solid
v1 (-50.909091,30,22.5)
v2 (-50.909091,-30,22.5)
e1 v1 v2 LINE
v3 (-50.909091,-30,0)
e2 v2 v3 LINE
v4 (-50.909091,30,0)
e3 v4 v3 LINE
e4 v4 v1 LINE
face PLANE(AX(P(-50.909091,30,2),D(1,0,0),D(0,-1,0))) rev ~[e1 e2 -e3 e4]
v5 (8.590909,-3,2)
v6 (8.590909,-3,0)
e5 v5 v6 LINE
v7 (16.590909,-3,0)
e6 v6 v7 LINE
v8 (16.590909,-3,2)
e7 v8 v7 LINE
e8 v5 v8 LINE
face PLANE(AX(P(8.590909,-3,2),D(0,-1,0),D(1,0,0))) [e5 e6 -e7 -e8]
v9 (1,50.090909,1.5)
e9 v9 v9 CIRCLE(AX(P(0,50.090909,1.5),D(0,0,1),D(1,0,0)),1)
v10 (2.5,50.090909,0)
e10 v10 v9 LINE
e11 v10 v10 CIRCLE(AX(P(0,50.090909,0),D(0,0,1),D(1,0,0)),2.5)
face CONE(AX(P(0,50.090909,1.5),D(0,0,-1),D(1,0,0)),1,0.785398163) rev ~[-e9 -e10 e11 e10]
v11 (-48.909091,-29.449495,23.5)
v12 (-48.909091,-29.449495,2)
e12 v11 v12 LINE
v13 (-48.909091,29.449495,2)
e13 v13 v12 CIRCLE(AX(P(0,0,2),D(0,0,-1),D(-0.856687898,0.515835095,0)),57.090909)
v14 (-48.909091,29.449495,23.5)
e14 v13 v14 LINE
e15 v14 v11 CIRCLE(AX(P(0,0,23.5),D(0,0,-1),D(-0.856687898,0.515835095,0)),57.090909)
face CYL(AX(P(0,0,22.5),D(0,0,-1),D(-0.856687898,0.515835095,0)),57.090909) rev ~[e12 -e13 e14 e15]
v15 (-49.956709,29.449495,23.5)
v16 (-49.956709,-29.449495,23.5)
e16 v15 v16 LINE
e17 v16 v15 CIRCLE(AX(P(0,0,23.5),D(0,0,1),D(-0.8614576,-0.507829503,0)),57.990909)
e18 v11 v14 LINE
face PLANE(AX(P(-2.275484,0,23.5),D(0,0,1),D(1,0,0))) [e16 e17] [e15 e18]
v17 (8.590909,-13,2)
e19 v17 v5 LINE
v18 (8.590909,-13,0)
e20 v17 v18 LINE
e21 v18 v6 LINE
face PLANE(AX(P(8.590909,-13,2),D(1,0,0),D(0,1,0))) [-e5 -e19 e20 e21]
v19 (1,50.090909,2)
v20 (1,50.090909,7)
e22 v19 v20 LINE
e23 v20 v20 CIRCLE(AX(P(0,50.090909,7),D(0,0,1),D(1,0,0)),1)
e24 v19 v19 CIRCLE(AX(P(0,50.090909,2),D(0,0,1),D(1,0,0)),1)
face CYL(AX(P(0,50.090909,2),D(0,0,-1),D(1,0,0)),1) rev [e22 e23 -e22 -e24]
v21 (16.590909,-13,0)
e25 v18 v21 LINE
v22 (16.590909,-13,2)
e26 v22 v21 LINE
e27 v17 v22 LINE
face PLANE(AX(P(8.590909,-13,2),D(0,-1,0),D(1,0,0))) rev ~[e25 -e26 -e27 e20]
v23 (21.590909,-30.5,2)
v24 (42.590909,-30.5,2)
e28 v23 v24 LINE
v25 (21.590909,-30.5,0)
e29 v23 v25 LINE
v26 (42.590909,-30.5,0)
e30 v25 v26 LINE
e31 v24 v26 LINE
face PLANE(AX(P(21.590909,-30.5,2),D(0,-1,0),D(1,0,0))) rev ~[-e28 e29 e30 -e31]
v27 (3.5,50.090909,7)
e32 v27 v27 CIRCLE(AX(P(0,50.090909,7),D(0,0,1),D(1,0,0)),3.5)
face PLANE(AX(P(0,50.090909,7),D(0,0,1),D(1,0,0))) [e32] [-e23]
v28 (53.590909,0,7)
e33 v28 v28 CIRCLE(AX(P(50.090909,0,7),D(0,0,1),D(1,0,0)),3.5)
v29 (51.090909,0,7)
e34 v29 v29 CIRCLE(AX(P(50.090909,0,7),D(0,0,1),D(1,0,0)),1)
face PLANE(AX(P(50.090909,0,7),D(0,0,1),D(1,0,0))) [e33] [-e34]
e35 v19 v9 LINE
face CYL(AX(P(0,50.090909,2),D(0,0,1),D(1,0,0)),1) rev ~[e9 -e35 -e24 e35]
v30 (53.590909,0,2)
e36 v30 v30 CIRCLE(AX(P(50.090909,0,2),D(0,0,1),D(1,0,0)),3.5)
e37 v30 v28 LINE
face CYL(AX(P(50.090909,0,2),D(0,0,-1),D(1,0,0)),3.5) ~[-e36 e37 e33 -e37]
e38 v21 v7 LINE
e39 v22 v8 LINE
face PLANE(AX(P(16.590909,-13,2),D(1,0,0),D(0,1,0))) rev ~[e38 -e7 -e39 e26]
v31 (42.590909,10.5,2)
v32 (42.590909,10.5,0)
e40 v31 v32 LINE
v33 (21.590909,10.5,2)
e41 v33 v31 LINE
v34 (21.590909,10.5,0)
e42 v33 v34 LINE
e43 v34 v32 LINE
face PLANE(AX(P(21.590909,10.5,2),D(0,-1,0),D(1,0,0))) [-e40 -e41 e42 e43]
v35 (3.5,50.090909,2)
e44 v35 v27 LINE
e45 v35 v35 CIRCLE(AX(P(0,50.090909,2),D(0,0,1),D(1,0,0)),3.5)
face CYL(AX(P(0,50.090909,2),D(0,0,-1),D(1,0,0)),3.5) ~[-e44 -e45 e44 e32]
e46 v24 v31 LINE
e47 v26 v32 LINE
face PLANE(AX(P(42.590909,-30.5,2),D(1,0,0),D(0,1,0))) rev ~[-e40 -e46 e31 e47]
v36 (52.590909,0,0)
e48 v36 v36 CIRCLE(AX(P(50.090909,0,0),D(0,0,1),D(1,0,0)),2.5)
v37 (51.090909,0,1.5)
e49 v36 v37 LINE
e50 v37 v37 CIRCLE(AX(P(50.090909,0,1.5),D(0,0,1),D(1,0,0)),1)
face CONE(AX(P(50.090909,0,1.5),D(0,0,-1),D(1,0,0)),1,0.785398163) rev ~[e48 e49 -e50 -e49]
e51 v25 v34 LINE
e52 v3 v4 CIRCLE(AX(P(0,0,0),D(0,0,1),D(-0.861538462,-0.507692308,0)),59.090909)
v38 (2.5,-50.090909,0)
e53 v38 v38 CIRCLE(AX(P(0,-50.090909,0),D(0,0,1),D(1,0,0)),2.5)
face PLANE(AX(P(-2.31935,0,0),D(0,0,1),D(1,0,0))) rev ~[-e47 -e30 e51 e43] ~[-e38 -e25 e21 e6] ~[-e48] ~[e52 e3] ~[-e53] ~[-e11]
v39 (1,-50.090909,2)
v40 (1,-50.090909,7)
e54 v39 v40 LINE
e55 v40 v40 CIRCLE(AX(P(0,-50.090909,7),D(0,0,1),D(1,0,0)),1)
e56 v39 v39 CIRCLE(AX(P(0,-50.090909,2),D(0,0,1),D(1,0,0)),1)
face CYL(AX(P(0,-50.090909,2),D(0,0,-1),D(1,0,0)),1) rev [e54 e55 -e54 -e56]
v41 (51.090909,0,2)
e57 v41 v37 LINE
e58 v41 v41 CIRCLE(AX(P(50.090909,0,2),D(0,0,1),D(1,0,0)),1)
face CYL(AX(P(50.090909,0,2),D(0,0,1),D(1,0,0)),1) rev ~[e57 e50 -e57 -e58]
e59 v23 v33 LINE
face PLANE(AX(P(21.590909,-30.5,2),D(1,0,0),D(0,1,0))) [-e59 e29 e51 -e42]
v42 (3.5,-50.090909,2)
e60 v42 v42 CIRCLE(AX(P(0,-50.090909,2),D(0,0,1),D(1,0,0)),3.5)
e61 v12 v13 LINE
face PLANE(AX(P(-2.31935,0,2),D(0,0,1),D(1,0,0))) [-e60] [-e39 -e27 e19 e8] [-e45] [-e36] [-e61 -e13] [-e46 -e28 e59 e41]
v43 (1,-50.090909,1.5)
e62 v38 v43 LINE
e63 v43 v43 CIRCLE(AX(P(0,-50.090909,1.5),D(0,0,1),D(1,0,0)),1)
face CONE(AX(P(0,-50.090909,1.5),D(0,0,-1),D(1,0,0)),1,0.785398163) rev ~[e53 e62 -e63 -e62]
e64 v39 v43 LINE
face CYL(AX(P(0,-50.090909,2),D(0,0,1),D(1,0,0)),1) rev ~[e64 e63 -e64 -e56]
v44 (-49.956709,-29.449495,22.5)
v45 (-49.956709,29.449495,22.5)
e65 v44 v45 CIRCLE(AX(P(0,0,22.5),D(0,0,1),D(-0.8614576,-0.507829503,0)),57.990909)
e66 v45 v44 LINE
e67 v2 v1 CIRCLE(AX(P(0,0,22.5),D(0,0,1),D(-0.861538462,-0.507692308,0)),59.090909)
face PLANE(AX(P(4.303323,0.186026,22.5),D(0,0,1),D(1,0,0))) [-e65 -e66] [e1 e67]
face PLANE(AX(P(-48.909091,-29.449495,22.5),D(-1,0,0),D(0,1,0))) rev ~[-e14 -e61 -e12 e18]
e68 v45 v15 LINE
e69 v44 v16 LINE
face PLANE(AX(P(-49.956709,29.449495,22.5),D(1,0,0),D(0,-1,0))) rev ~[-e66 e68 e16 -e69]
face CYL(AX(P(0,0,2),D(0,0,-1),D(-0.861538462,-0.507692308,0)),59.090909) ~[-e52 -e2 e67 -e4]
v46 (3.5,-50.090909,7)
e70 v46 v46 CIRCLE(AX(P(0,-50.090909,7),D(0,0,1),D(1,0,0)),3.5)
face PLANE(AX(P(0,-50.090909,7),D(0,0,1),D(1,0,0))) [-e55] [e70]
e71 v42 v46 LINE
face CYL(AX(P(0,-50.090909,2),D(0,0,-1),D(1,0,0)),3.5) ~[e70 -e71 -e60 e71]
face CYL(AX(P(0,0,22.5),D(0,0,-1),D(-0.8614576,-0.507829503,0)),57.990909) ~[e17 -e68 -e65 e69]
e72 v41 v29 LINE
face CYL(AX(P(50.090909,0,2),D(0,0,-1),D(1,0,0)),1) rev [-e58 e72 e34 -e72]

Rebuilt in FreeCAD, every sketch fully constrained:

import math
import FreeCAD as App
import Part
import Sketcher

V = App.Vector
Q = App.Units.Quantity


def edges_at(feature, points):
    """Names of the edges that pass closest to the given points."""
    edges = feature.Shape.Edges
    near = lambda p: min(range(len(edges)), key=lambda i: edges[i].distToShape(Part.Vertex(*p))[0])
    return sorted({f"Edge{near(p) + 1}" for p in points})

doc = App.newDocument("Part")
body = doc.addObject("PartDesign::Body", "Body")

# Sketch on XY plane
sketch1 = doc.addObject("Sketcher::SketchObject", "Sketch")
body.addObject(sketch1)
sketch1.AttachmentSupport = (doc.XY_Plane, [""])
sketch1.MapMode = "FlatFace"
sketch1.addGeometry([
    Part.LineSegment(V(-51, 30, 0), V(-51, -30, 0)),
    Part.ArcOfCircle(Part.Circle(V(0, 0, 0), V(0, 0, 1), 59), math.radians(-149), math.radians(149)),
], False)
sketch1.addConstraint([
    Sketcher.Constraint("Coincident", 0, 1, 1, 2),
    Sketcher.Constraint("Coincident", 1, 1, 0, 2),
    Sketcher.Constraint("Vertical", 0),
    Sketcher.Constraint("Coincident", 1, 3, -1, 1),
    Sketcher.Constraint("DistanceY", 0, 2, 0, 1, Q("60 mm")),
    Sketcher.Constraint("Radius", 1, Q("59.090909 mm")),
])
pad1 = doc.addObject("PartDesign::Pad", "Pad")
body.addObject(pad1)
pad1.Profile = sketch1
pad1.Length = 2

# Sketch on XY plane
sketch2 = doc.addObject("Sketcher::SketchObject", "Sketch001")
body.addObject(sketch2)
sketch2.AttachmentSupport = (doc.XY_Plane, [""])
sketch2.MapMode = "FlatFace"
sketch2.AttachmentOffset = App.Placement(V(0, 0, 2), App.Rotation())
sketch2.addGeometry([
    Part.Circle(V(0, -50.1, 0), V(0, 0, 1), 3.5),  # 0
    Part.Circle(V(0, -50.1, 0), V(0, 0, 1), 1),  # 1
    Part.Circle(V(0, 50.1, 0), V(0, 0, 1), 3.5),  # 2
    Part.Circle(V(0, 50.1, 0), V(0, 0, 1), 1),  # 3
    Part.Circle(V(50.1, 0, 0), V(0, 0, 1), 3.5),  # 4
    Part.Circle(V(50.1, 0, 0), V(0, 0, 1), 1),  # 5
], False)
sketch2.addConstraint([
    Sketcher.Constraint("Coincident", 1, 3, 0, 3),
    Sketcher.Constraint("Coincident", 3, 3, 2, 3),
    Sketcher.Constraint("Coincident", 5, 3, 4, 3),
    Sketcher.Constraint("Equal", 0, 2),
    Sketcher.Constraint("Equal", 1, 3),
    Sketcher.Constraint("Equal", 2, 4),
    Sketcher.Constraint("Equal", 3, 5),
    Sketcher.Constraint("Symmetric", 0, 3, 2, 3, -1, 1),
    Sketcher.Constraint("PointOnObject", 0, 3, -2),
    Sketcher.Constraint("PointOnObject", 4, 3, -1),
    Sketcher.Constraint("Diameter", 0, Q("7 mm")),
    Sketcher.Constraint("Diameter", 1, Q("2 mm")),
    Sketcher.Constraint("DistanceY", 0, 3, -1, 1, Q("50.090909 mm")),
    Sketcher.Constraint("DistanceX", -1, 1, 4, 3, Q("50.090909 mm")),
])
pad2 = doc.addObject("PartDesign::Pad", "Pad001")
body.addObject(pad2)
pad2.Profile = sketch2
pad2.Length = 5

# Sketch on XY plane
sketch3 = doc.addObject("Sketcher::SketchObject", "Sketch002")
body.addObject(sketch3)
sketch3.AttachmentSupport = (doc.XY_Plane, [""])
sketch3.MapMode = "FlatFace"
sketch3.AttachmentOffset = App.Placement(V(0, 0, 2), App.Rotation())
sketch3.addGeometry([
    Part.ArcOfCircle(Part.Circle(V(0, 0, 0), V(0, 0, 1), 59), math.radians(-149), math.radians(149)),
    Part.LineSegment(V(-51, 30, 0), V(-51, -30, 0)),
    Part.ArcOfCircle(Part.Circle(V(0, 0, 0), V(0, 0, 1), 57), math.radians(-149), math.radians(149)),
    Part.LineSegment(V(-49, -29, 0), V(-49, 29, 0)),
], False)
sketch3.addConstraint([
    Sketcher.Constraint("Coincident", 0, 1, 1, 2),
    Sketcher.Constraint("Coincident", 1, 1, 0, 2),
    Sketcher.Constraint("Coincident", 2, 1, 3, 1),
    Sketcher.Constraint("Coincident", 3, 2, 2, 2),
    Sketcher.Constraint("Vertical", 1),
    Sketcher.Constraint("Vertical", 3),
    Sketcher.Constraint("Coincident", 0, 3, -1, 1),
    Sketcher.Constraint("Coincident", 2, 3, -1, 1),
    Sketcher.Constraint("DistanceY", 1, 2, 1, 1, Q("60 mm")),
    Sketcher.Constraint("DistanceX", 0, 1, 2, 1, Q("2 mm")),
    Sketcher.Constraint("Radius", 0, Q("59.090909 mm")),
    Sketcher.Constraint("Radius", 2, Q("57.090909 mm")),
])
pad3 = doc.addObject("PartDesign::Pad", "Pad002")
body.addObject(pad3)
pad3.Profile = sketch3
pad3.Length = 20.5

# Sketch on XY plane
sketch4 = doc.addObject("Sketcher::SketchObject", "Sketch003")
body.addObject(sketch4)
sketch4.AttachmentSupport = (doc.XY_Plane, [""])
sketch4.MapMode = "FlatFace"
sketch4.AttachmentOffset = App.Placement(V(0, 0, 22.5), App.Rotation())
sketch4.addGeometry([
    Part.LineSegment(V(-50, 29, 0), V(-50, -29, 0)),
    Part.ArcOfCircle(Part.Circle(V(0, 0, 0), V(0, 0, 1), 58), math.radians(-149), math.radians(149)),
    Part.LineSegment(V(-49, -29, 0), V(-49, 29, 0)),
    Part.ArcOfCircle(Part.Circle(V(0, 0, 0), V(0, 0, 1), 57), math.radians(-149), math.radians(149)),
], False)
sketch4.addConstraint([
    Sketcher.Constraint("Coincident", 0, 1, 1, 2),
    Sketcher.Constraint("Coincident", 1, 1, 0, 2),
    Sketcher.Constraint("Coincident", 2, 1, 3, 1),
    Sketcher.Constraint("Coincident", 3, 2, 2, 2),
    Sketcher.Constraint("Vertical", 0),
    Sketcher.Constraint("Vertical", 2),
    Sketcher.Constraint("Coincident", 1, 3, -1, 1),
    Sketcher.Constraint("Coincident", 3, 3, -1, 1),
    Sketcher.Constraint("Horizontal", 1, 1, 2, 1),
    Sketcher.Constraint("Radius", 1, Q("57.990909 mm")),
    Sketcher.Constraint("Radius", 3, Q("57.090909 mm")),
    Sketcher.Constraint("DistanceY", 0, 2, 0, 1, Q("58.898989 mm")),
])
pad4 = doc.addObject("PartDesign::Pad", "Pad003")
body.addObject(pad4)
pad4.Profile = sketch4
pad4.Length = 1

# Sketch on XY plane
sketch5 = doc.addObject("Sketcher::SketchObject", "Sketch004")
body.addObject(sketch5)
sketch5.AttachmentSupport = (doc.XY_Plane, [""])
sketch5.MapMode = "FlatFace"
sketch5.AttachmentOffset = App.Placement(V(0, 0, 2), App.Rotation())
sketch5.addGeometry([
    Part.LineSegment(V(22, 10, 0), V(22, -30, 0)),
    Part.LineSegment(V(22, -30, 0), V(43, -30, 0)),
    Part.LineSegment(V(43, -30, 0), V(43, 10, 0)),
    Part.LineSegment(V(43, 10, 0), V(22, 10, 0)),
], False)
sketch5.addConstraint([
    Sketcher.Constraint("Coincident", 0, 2, 1, 1),
    Sketcher.Constraint("Coincident", 1, 2, 2, 1),
    Sketcher.Constraint("Coincident", 2, 2, 3, 1),
    Sketcher.Constraint("Coincident", 3, 2, 0, 1),
    Sketcher.Constraint("Vertical", 0),
    Sketcher.Constraint("Horizontal", 1),
    Sketcher.Constraint("Vertical", 2),
    Sketcher.Constraint("Horizontal", 3),
    Sketcher.Constraint("DistanceX", 1, 1, 1, 2, Q("21 mm")),
    Sketcher.Constraint("DistanceY", 0, 2, 0, 1, Q("41 mm")),
    Sketcher.Constraint("DistanceY", 0, 2, -1, 1, Q("30.5 mm")),
    Sketcher.Constraint("DistanceX", -1, 1, 0, 2, Q("21.590909 mm")),
])
pocket1 = doc.addObject("PartDesign::Pocket", "Pocket")
body.addObject(pocket1)
pocket1.Profile = sketch5
pocket1.Length = 25

# Sketch on XY plane
sketch6 = doc.addObject("Sketcher::SketchObject", "Sketch005")
body.addObject(sketch6)
sketch6.AttachmentSupport = (doc.XY_Plane, [""])
sketch6.MapMode = "FlatFace"
sketch6.AttachmentOffset = App.Placement(V(0, 0, 2), App.Rotation())
sketch6.addGeometry([
    Part.Circle(V(0, 50.1, 0), V(0, 0, 1), 1),
    Part.Circle(V(50.1, 0, 0), V(0, 0, 1), 1),
    Part.Circle(V(0, -50.1, 0), V(0, 0, 1), 1),
], False)
sketch6.addConstraint([
    Sketcher.Constraint("Equal", 0, 1),
    Sketcher.Constraint("Equal", 1, 2),
    Sketcher.Constraint("Symmetric", 0, 3, 2, 3, -1, 1),
    Sketcher.Constraint("PointOnObject", 0, 3, -2),
    Sketcher.Constraint("PointOnObject", 1, 3, -1),
    Sketcher.Constraint("Diameter", 0, Q("2 mm")),
    Sketcher.Constraint("DistanceY", -1, 1, 0, 3, Q("50.090909 mm")),
    Sketcher.Constraint("DistanceX", -1, 1, 1, 3, Q("50.090909 mm")),
])
pocket2 = doc.addObject("PartDesign::Pocket", "Pocket001")
body.addObject(pocket2)
pocket2.Profile = sketch6
pocket2.Length = 25
doc.recompute()

chamfer = doc.addObject("PartDesign::Chamfer", "Chamfer")
body.addObject(chamfer)
chamfer.Base = (pocket2, edges_at(pocket2, [(-1, -50.091, 0), (49.091, 0, 0), (-1, 50.091, 0)]))
chamfer.ChamferType = "Two distances"
chamfer.Size = 1.5
chamfer.Size2 = 1.5

# Sketch on XY plane
sketch7 = doc.addObject("Sketcher::SketchObject", "Sketch006")
body.addObject(sketch7)
sketch7.AttachmentSupport = (doc.XY_Plane, [""])
sketch7.MapMode = "FlatFace"
sketch7.AttachmentOffset = App.Placement(V(0, 0, 2), App.Rotation())
sketch7.addGeometry([
    Part.LineSegment(V(9, -3, 0), V(9, -13, 0)),
    Part.LineSegment(V(9, -13, 0), V(17, -13, 0)),
    Part.LineSegment(V(17, -13, 0), V(17, -3, 0)),
    Part.LineSegment(V(17, -3, 0), V(9, -3, 0)),
], False)
sketch7.addConstraint([
    Sketcher.Constraint("Coincident", 0, 2, 1, 1),
    Sketcher.Constraint("Coincident", 1, 2, 2, 1),
    Sketcher.Constraint("Coincident", 2, 2, 3, 1),
    Sketcher.Constraint("Coincident", 3, 2, 0, 1),
    Sketcher.Constraint("Vertical", 0),
    Sketcher.Constraint("Horizontal", 1),
    Sketcher.Constraint("Vertical", 2),
    Sketcher.Constraint("Horizontal", 3),
    Sketcher.Constraint("DistanceX", 1, 1, 1, 2, Q("8 mm")),
    Sketcher.Constraint("DistanceY", 0, 2, 0, 1, Q("10 mm")),
    Sketcher.Constraint("DistanceY", 0, 2, -1, 1, Q("13 mm")),
    Sketcher.Constraint("DistanceX", -1, 1, 0, 2, Q("8.590909 mm")),
])
pocket3 = doc.addObject("PartDesign::Pocket", "Pocket002")
body.addObject(pocket3)
pocket3.Profile = sketch7
pocket3.Length = 25

doc.recompute()
